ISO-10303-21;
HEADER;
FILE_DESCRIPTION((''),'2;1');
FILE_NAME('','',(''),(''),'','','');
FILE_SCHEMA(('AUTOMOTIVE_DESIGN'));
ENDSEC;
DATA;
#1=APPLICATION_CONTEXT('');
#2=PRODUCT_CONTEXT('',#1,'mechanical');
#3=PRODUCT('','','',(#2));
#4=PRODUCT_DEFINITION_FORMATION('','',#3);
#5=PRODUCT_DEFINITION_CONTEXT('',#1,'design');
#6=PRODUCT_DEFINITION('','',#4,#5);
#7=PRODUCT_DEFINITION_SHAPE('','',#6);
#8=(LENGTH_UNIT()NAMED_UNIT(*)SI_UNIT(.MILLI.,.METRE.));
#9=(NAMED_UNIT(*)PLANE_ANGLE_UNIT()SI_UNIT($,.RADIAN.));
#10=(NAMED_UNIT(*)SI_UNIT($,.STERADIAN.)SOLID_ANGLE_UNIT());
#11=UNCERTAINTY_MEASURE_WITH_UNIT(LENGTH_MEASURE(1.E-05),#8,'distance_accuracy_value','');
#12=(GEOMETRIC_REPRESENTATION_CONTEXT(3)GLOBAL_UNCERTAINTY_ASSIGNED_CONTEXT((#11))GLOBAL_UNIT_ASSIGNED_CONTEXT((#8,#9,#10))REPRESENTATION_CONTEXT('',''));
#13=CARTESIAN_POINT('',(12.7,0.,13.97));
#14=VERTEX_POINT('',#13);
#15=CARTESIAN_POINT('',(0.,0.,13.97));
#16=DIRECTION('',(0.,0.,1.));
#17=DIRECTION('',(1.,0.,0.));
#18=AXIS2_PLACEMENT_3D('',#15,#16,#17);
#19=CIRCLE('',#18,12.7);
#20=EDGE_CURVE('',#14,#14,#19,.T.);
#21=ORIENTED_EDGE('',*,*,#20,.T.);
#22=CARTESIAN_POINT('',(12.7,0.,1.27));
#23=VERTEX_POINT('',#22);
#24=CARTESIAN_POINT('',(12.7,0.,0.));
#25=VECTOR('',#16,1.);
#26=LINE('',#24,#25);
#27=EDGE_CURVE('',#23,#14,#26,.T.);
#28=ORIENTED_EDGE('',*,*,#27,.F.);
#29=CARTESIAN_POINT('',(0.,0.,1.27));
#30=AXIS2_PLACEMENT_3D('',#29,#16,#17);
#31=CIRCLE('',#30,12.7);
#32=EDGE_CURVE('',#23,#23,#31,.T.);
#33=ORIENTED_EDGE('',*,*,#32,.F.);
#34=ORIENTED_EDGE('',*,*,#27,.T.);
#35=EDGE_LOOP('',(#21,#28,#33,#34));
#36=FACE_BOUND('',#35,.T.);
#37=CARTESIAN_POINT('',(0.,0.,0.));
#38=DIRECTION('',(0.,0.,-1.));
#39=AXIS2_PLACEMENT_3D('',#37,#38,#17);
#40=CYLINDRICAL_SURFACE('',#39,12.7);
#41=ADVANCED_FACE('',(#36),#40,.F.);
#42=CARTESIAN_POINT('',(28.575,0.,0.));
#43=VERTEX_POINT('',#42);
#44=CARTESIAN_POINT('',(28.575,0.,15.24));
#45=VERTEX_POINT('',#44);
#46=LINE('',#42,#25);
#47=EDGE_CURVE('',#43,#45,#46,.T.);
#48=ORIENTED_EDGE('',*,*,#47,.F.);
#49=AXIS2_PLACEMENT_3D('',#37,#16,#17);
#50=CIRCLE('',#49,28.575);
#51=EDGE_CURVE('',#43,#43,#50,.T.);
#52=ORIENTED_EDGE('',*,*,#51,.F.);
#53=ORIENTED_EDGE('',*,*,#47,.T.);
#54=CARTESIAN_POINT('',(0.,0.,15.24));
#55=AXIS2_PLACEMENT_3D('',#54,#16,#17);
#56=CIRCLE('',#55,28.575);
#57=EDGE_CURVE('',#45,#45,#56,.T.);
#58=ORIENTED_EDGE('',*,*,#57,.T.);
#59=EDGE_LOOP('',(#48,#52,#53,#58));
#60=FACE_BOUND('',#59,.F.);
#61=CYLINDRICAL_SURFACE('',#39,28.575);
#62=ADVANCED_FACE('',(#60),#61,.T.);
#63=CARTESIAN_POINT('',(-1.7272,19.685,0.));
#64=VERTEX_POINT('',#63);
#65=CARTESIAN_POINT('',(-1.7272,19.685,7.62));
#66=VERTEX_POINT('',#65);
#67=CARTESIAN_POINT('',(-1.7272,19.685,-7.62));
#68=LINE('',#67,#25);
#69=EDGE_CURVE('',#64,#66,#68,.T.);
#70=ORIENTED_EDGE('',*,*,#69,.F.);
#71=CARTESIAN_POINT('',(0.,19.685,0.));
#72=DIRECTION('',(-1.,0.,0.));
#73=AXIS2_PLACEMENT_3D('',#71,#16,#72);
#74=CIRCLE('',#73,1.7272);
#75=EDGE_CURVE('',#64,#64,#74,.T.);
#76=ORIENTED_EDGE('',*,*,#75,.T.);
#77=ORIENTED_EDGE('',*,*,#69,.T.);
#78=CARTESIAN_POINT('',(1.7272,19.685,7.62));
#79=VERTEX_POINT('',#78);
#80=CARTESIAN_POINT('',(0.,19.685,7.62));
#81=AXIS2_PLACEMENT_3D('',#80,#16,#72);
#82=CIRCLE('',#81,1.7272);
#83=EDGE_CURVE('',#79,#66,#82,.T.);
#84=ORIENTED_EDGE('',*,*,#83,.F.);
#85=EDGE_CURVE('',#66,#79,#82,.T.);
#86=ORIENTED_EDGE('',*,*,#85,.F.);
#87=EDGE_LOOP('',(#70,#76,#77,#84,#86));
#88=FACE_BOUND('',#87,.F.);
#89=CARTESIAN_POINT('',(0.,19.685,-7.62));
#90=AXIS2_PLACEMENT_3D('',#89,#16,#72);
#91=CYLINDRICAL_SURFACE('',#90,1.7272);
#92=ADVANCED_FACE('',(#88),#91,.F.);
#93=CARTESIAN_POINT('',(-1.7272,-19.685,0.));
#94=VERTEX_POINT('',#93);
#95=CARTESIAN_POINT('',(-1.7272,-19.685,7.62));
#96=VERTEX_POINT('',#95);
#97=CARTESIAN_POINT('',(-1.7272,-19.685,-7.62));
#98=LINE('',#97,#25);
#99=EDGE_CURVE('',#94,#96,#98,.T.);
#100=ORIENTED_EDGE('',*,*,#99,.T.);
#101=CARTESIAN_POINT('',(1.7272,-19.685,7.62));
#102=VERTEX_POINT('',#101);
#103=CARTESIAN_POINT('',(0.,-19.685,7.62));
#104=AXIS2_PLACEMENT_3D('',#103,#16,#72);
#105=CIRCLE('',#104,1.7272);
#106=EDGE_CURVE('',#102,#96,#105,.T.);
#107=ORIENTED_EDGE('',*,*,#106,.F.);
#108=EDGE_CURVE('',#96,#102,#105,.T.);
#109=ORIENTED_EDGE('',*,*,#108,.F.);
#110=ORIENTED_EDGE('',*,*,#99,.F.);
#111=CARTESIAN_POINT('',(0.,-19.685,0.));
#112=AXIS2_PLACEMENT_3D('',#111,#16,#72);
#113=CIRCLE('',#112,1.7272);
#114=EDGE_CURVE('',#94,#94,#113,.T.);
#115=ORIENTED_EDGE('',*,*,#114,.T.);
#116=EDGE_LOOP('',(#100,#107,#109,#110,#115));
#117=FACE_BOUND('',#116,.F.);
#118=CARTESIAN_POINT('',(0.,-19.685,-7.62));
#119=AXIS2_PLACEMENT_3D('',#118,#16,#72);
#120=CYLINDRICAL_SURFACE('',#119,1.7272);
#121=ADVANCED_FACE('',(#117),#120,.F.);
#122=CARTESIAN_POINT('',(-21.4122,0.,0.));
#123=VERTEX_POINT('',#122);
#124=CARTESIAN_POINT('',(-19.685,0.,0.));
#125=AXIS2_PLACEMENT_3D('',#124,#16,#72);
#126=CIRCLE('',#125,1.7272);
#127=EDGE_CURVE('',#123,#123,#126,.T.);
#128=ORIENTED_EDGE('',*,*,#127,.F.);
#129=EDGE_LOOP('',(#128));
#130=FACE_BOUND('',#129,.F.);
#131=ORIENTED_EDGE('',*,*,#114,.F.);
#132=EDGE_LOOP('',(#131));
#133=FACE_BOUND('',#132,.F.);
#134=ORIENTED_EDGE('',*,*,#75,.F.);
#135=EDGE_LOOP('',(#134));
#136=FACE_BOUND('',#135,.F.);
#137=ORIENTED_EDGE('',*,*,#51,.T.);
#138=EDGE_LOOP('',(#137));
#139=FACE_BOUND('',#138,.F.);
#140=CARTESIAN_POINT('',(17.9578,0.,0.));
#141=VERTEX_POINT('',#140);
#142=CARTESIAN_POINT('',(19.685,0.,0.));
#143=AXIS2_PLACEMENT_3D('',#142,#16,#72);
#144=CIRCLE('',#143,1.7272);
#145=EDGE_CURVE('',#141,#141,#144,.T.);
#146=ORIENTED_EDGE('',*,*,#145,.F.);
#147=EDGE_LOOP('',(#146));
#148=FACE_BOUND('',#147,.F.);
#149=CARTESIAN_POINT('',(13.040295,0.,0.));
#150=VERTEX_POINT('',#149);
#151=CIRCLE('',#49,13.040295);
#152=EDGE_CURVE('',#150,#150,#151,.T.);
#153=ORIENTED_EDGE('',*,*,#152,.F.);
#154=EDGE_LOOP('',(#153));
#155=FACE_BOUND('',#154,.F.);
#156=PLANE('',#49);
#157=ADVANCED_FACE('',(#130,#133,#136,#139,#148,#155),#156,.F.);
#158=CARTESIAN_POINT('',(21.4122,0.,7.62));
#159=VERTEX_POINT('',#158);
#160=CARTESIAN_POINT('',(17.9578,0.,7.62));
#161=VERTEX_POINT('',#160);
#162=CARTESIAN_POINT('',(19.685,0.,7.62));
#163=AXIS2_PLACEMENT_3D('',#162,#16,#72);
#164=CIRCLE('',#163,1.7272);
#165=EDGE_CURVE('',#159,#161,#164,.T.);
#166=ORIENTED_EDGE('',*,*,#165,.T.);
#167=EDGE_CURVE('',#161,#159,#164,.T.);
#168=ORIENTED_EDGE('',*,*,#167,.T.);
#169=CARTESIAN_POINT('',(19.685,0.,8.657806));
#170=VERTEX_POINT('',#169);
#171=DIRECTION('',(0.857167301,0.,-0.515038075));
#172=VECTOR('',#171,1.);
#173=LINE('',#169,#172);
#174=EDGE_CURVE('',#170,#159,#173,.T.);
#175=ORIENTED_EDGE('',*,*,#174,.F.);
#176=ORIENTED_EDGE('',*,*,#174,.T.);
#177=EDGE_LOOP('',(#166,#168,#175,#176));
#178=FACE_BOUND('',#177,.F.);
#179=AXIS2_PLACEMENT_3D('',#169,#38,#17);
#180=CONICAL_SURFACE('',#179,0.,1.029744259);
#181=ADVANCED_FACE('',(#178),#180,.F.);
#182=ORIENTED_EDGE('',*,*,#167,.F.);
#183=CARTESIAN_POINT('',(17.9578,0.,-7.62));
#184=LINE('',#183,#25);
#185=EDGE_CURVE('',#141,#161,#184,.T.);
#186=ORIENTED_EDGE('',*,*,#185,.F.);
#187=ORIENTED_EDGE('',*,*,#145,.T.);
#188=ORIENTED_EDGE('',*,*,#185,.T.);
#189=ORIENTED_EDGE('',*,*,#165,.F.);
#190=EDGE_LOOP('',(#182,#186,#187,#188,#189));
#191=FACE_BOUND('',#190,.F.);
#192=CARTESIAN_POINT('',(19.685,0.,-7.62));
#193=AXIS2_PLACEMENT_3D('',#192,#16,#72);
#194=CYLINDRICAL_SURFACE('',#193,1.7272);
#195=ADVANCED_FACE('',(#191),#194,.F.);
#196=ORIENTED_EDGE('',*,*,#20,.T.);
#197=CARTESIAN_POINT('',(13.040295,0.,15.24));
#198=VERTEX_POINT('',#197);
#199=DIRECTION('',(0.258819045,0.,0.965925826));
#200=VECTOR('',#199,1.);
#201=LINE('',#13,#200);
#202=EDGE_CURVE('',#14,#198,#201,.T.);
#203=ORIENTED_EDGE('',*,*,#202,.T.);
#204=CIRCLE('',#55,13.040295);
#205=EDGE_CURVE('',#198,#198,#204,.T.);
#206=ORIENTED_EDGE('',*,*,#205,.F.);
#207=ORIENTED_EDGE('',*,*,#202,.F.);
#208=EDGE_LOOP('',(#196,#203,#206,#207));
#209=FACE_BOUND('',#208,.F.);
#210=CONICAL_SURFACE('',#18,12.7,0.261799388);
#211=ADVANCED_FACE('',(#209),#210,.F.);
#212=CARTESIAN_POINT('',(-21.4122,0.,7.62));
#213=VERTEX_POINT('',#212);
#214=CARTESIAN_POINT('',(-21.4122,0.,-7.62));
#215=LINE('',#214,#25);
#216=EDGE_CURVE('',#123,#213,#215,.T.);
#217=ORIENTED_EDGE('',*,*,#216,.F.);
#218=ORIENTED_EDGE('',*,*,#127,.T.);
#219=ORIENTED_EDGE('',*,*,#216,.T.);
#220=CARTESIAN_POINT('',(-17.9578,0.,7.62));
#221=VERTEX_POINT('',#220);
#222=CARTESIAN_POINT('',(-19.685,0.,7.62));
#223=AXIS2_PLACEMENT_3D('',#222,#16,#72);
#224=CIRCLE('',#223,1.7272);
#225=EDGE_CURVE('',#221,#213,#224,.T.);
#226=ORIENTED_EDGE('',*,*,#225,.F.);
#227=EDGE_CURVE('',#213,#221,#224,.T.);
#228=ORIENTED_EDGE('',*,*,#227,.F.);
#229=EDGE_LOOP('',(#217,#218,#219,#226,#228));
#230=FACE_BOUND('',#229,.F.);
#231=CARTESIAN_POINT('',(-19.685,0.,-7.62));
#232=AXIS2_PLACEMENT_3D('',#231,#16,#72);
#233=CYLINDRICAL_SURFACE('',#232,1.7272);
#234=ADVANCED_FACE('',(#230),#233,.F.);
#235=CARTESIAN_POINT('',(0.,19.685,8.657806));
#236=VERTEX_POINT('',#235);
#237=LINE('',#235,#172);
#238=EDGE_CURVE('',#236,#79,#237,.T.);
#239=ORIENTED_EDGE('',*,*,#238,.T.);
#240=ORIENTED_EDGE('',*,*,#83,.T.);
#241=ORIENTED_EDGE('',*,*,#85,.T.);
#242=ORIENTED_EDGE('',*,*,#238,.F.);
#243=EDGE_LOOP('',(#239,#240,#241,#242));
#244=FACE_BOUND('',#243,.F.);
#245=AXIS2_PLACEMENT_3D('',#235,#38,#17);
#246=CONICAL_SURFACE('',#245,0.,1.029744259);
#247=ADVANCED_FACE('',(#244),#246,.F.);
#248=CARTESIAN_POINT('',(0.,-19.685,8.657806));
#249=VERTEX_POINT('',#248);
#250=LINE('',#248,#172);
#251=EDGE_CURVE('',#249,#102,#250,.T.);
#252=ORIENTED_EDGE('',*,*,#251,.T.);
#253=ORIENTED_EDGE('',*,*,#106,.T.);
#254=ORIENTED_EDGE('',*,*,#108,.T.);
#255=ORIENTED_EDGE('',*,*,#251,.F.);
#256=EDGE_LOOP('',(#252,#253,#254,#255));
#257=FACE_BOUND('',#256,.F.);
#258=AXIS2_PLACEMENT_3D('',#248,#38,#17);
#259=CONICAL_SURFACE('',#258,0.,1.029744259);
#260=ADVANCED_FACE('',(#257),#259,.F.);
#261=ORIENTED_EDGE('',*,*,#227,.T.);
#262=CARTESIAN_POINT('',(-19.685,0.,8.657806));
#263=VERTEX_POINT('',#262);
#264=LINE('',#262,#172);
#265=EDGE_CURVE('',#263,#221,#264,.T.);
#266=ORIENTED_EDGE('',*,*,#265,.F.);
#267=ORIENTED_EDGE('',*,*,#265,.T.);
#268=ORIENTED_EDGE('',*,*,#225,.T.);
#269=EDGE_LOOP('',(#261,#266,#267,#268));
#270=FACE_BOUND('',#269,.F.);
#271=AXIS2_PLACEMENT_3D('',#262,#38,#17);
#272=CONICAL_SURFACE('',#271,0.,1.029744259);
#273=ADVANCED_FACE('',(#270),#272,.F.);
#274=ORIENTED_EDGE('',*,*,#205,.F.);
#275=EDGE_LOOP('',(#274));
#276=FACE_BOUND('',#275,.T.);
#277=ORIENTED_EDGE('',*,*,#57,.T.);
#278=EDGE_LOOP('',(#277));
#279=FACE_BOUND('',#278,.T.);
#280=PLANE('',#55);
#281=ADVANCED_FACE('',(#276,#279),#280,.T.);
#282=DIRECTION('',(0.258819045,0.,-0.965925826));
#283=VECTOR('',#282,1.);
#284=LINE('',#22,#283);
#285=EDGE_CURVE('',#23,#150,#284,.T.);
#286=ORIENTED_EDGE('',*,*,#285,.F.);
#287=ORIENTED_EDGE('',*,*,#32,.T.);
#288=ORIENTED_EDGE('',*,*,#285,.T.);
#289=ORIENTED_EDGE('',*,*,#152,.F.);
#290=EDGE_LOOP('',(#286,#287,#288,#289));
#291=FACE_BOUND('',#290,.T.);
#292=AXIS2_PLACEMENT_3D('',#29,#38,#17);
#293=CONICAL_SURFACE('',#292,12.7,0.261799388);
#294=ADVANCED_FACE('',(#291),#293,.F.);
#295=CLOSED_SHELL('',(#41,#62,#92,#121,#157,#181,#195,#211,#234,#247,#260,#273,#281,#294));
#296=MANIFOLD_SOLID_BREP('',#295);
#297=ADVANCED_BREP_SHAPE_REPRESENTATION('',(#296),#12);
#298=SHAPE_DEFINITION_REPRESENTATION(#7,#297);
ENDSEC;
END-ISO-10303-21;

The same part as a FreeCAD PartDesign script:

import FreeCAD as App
import Part
import Sketcher
from FreeCAD import Vector
Q = App.Units.Quantity


def edges_at(feature, points):
    """Names of the edges that pass closest to the given points."""
    edges = feature.Shape.Edges
    near = lambda p: min(range(len(edges)), key=lambda i: edges[i].distToShape(Part.Vertex(*p))[0])
    return sorted({f"Edge{near(p) + 1}" for p in points})

doc = App.newDocument("Part")
body = doc.addObject("PartDesign::Body", "Body")

# Sketch on XY plane
sketch1 = body.newObject("Sketcher::SketchObject", "Sketch")
sketch1.AttachmentSupport = (doc.getObject("XY_Plane"), [""])
sketch1.MapMode = "FlatFace"
sketch1.addGeometry(Part.Circle(Vector(0, 0, 0), Vector(0, 0, 1), 29), False)
sketch1.addGeometry(Part.Circle(Vector(0, 0, 0), Vector(0, 0, 1), 13), False)
sketch1.addConstraint(Sketcher.Constraint("Coincident", 0, 3, -1, 1))
sketch1.addConstraint(Sketcher.Constraint("Coincident", 1, 3, -1, 1))
sketch1.addConstraint(Sketcher.Constraint("Diameter", 1, Q("1 in")))
sketch1.addConstraint(Sketcher.Constraint("Diameter", 0, Q("2.25 in")))
pad1 = body.newObject("PartDesign::Pad", "Pad")
pad1.Profile = sketch1
pad1.Length = Q("0.6 in")
doc.recompute()

chamfer = body.newObject("PartDesign::Chamfer", "Chamfer")
chamfer.Base = (pad1, edges_at(pad1, [(-12.7, 0, 15.24), (-12.7, 0, 0)]))
chamfer.ChamferType = "Two distances"
chamfer.Size = Q("0.05 in")
chamfer.Size2 = 0.340295

# Sketch on XY plane
sketch2 = body.newObject("Sketcher::SketchObject", "Sketch001")
sketch2.AttachmentSupport = (doc.getObject("XY_Plane"), [""])
sketch2.MapMode = "FlatFace"
sketch2.addGeometry(Part.Circle(Vector(0, 19.7, 0), Vector(0, 0, 1), 1.7), False)
sketch2.addGeometry(Part.Circle(Vector(-19.7, 0, 0), Vector(0, 0, 1), 1.7), False)
sketch2.addGeometry(Part.Circle(Vector(0, -19.7, 0), Vector(0, 0, 1), 1.7), False)
sketch2.addGeometry(Part.Circle(Vector(19.7, 0, 0), Vector(0, 0, 1), 1.7), False)
sketch2.addConstraint(Sketcher.Constraint("Equal", 0, 1))
sketch2.addConstraint(Sketcher.Constraint("Equal", 1, 2))
sketch2.addConstraint(Sketcher.Constraint("Equal", 2, 3))
sketch2.addConstraint(Sketcher.Constraint("Symmetric", 0, 3, 2, 3, -1, 1))
sketch2.addConstraint(Sketcher.Constraint("Symmetric", 1, 3, 3, 3, -1, 1))
sketch2.addConstraint(Sketcher.Constraint("PointOnObject", 0, 3, -2))
sketch2.addConstraint(Sketcher.Constraint("PointOnObject", 1, 3, -1))
sketch2.addConstraint(Sketcher.Constraint("Diameter", 0, Q("0.136 in")))
sketch2.addConstraint(Sketcher.Constraint("DistanceY", 2, 3, 0, 3, Q("1.55 in")))
sketch2.addConstraint(Sketcher.Constraint("DistanceX", 1, 3, 3, 3, Q("1.55 in")))
doc.recompute()
hole = body.newObject("PartDesign::Hole", "Hole")
hole.Profile = sketch2
hole.ThreadType = "None"
hole.Diameter = Q("0.136 in")
hole.DepthType = "Dimension"
hole.Depth = Q("0.3 in")
hole.DrillPoint = "Angled"
hole.DrillPointAngle = 118
hole.Reversed = True

doc.recompute()
